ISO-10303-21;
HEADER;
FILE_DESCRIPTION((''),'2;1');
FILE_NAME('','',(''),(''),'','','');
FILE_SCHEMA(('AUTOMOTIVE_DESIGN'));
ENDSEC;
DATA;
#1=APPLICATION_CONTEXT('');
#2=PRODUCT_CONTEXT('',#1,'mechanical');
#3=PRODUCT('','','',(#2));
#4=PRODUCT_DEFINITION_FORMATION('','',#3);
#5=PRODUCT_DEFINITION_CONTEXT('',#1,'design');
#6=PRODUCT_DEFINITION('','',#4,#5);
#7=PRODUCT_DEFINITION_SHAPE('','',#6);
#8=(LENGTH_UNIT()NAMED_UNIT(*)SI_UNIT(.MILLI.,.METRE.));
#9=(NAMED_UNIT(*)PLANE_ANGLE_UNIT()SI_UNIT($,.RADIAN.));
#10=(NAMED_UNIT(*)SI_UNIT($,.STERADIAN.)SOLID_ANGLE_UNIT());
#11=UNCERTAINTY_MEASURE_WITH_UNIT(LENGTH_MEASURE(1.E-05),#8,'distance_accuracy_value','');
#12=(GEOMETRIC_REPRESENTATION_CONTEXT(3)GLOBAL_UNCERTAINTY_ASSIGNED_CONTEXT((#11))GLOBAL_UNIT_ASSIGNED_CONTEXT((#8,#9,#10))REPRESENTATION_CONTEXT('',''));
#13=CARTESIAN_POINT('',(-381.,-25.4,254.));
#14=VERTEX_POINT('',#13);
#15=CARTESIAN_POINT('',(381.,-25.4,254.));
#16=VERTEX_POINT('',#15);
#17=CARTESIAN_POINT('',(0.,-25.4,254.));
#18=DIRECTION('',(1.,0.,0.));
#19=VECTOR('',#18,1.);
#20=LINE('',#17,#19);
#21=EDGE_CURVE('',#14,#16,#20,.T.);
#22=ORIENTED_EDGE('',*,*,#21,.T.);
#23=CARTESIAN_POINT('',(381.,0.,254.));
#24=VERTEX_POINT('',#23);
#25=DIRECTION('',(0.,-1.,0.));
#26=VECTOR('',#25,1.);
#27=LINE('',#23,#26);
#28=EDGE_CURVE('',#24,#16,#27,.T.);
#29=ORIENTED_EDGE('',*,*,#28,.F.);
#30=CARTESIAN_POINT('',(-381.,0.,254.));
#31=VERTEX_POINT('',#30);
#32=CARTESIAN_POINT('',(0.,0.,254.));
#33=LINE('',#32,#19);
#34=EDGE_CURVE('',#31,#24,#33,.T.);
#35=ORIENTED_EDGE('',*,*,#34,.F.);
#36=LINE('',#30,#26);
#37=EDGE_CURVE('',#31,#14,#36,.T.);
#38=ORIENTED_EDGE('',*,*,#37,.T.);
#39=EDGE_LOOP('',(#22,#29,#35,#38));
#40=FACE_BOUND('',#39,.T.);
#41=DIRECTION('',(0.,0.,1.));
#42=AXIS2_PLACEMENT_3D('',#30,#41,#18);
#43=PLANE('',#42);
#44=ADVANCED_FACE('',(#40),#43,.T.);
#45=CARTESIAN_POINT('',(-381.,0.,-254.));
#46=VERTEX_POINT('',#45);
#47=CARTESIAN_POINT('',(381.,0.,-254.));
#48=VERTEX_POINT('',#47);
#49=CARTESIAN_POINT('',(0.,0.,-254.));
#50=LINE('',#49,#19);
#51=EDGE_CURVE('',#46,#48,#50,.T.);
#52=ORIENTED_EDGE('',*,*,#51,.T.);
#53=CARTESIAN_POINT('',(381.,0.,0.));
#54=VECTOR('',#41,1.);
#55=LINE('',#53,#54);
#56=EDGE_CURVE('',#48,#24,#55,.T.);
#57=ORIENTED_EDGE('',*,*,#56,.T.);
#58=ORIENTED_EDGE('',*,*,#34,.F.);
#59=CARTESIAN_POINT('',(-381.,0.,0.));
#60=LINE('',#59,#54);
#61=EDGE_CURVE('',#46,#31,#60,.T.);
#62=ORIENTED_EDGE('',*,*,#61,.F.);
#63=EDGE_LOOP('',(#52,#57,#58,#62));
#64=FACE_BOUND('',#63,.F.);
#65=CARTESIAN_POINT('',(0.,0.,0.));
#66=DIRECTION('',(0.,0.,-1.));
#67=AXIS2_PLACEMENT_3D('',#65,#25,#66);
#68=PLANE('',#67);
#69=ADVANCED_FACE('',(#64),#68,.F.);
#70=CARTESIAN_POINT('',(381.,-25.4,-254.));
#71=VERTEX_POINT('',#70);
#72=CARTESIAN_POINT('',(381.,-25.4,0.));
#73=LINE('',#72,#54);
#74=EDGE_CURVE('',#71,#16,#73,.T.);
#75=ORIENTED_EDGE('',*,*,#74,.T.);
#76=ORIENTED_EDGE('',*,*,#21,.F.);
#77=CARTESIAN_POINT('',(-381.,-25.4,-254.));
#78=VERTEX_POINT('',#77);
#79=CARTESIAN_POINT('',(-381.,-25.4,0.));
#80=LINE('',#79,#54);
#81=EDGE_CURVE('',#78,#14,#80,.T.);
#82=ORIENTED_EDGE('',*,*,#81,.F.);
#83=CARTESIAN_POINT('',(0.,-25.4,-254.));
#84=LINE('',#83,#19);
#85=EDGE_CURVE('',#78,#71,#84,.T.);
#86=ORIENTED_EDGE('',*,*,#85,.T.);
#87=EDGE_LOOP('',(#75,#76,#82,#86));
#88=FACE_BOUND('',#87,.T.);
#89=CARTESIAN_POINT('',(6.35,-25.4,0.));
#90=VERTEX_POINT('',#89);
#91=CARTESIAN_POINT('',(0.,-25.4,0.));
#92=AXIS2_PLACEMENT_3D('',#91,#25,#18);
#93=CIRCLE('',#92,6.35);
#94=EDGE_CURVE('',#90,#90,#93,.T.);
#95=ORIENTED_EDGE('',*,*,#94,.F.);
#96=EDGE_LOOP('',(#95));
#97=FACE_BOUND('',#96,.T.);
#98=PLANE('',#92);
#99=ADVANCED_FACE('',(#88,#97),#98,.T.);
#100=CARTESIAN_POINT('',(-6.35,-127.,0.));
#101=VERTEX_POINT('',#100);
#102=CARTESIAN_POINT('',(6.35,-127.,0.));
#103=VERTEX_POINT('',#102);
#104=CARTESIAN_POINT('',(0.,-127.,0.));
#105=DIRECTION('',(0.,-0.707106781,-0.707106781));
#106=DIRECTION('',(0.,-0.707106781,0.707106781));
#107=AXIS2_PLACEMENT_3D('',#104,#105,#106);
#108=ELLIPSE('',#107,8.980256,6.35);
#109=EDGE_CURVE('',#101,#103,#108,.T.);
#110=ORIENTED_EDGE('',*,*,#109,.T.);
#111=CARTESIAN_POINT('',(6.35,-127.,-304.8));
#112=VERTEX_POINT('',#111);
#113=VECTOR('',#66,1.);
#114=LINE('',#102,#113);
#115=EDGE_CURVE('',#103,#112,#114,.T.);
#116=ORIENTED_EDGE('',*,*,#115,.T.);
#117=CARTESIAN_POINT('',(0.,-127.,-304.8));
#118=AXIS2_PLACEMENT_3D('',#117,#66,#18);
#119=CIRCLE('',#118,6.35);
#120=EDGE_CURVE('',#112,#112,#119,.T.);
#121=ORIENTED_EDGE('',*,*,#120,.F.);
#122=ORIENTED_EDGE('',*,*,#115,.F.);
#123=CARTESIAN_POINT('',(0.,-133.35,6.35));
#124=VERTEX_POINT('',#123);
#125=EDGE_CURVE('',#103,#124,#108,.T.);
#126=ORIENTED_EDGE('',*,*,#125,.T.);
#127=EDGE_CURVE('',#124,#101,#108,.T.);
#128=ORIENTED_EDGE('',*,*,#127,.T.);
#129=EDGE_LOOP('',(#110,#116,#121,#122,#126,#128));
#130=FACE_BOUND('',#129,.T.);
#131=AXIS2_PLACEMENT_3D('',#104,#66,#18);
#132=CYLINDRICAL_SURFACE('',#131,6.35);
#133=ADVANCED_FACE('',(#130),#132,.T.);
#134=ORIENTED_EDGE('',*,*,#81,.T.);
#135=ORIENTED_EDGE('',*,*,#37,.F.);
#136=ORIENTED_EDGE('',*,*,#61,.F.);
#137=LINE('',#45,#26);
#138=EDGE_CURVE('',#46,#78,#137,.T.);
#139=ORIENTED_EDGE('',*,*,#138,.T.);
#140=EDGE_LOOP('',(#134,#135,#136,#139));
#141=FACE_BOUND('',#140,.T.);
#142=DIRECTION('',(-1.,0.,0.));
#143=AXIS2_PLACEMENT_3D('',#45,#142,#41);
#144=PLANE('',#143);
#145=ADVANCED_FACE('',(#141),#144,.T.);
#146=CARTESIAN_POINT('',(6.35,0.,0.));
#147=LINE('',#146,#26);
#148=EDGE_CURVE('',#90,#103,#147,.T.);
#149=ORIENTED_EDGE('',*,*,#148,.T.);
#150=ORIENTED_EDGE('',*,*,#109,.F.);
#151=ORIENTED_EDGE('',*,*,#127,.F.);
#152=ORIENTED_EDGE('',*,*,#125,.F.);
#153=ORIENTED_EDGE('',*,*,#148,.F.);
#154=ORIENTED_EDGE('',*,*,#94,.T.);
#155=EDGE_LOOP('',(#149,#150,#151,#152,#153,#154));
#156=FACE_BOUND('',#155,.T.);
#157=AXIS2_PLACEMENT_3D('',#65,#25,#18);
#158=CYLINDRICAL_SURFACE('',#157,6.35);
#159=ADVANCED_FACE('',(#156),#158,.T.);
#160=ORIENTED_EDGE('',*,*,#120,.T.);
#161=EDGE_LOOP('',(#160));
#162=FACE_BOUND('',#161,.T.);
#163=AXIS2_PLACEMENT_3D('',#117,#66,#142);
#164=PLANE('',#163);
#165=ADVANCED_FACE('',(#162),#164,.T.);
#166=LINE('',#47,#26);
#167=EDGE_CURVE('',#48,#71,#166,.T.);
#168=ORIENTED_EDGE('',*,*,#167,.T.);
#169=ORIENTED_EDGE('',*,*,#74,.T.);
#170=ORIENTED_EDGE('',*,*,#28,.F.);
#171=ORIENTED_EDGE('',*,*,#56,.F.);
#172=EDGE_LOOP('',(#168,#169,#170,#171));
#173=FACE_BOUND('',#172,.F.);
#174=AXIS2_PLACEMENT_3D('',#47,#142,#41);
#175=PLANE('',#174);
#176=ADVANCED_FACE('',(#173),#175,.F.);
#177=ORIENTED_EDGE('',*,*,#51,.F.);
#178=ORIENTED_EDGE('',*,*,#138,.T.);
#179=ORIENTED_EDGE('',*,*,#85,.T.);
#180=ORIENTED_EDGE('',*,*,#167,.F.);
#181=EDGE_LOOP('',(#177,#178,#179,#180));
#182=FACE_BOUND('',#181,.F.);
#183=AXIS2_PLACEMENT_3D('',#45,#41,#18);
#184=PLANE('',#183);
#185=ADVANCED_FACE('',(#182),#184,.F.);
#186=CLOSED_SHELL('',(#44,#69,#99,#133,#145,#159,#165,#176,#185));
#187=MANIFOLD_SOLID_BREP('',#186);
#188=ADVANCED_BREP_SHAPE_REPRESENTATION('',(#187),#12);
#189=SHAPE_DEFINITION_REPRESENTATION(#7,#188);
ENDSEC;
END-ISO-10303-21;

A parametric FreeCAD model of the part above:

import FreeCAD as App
import Part
import Sketcher

V = App.Vector
Q = App.Units.Quantity


def add_polygon(sketch, points):
    """Adds a closed chain of lines whose ends are joined by coincident constraints."""
    first, n = sketch.GeometryCount, len(points)
    for a, b in zip(points, points[1:] + points[:1]):
        sketch.addGeometry(Part.LineSegment(App.Vector(*a, 0), App.Vector(*b, 0)), False)
    for i in range(n):
        sketch.addConstraint(Sketcher.Constraint("Coincident", first + i, 2, first + (i + 1) % n, 1))

doc = App.newDocument("Part")
params = doc.addObject("Spreadsheet::Sheet", "Params")
for row, (alias, value) in enumerate([
    ("sketch1_width", "30 in"),
    ("sketch1_height", "20 in"),
    ("pad1_length", "1 in"),
    ("sketch2_diameter", "0.5 in"),
    ("sketch3_width", "5 in"),
    ("sketch3_height", "12 in"),
], start=1):
    params.set(f"A{row}", alias)
    params.set(f"B{row}", "=" + value)
    params.setAlias(f"B{row}", alias)

body = doc.addObject("PartDesign::Body", "Body")

# Sketch on XZ plane
sketch1 = body.newObject("Sketcher::SketchObject", "Sketch")
sketch1.AttachmentSupport = (doc.getObject("XZ_Plane"), [""])
sketch1.MapMode = "FlatFace"
add_polygon(sketch1, [(-381, 254), (-381, -254), (381, -254), (381, 254)])  # lines 0-3
sketch1.addConstraint([
    Sketcher.Constraint("Vertical", 0),
    Sketcher.Constraint("Horizontal", 1),
    Sketcher.Constraint("Vertical", 2),
    Sketcher.Constraint("Horizontal", 3),
    Sketcher.Constraint("Symmetric", 0, 2, 2, 2, -1, 1),
    Sketcher.Constraint("DistanceX", 1, 1, 1, 2, Q("30 in")),
    Sketcher.Constraint("DistanceY", 0, 2, 0, 1, Q("20 in")),
])
sketch1.setExpression("Constraints[9]", "Params.sketch1_width")
sketch1.setExpression("Constraints[10]", "Params.sketch1_height")
pad1 = body.newObject("PartDesign::Pad", "Pad")
pad1.Profile = sketch1
pad1.setExpression("Length", "Params.pad1_length")

# Sketch on XZ plane
sketch2 = body.newObject("Sketcher::SketchObject", "Sketch001")
sketch2.AttachmentSupport = (doc.getObject("XZ_Plane"), [""])
sketch2.MapMode = "FlatFace"
sketch2.addGeometry(Part.Circle(V(0, 0, 0), V(0, 0, 1), 6), False)
sketch2.addConstraint([
    Sketcher.Constraint("Coincident", 0, 3, -1, 1),
    Sketcher.Constraint("Diameter", 0, Q("0.5 in")),
])
sketch2.setExpression("Constraints[1]", "Params.sketch2_diameter")

# Sketch on YZ plane
sketch3 = body.newObject("Sketcher::SketchObject", "Sketch002")
sketch3.AttachmentSupport = (doc.getObject("YZ_Plane"), [""])
sketch3.MapMode = "FlatFace"
sketch3.addGeometry([
    Part.LineSegment(V(0, 0, 0), V(-127, 0, 0)),
    Part.LineSegment(V(-127, 0, 0), V(-127, -305, 0)),
], False)
sketch3.addConstraint([
    Sketcher.Constraint("Coincident", 0, 2, 1, 1),
    Sketcher.Constraint("Horizontal", 0),
    Sketcher.Constraint("Vertical", 1),
    Sketcher.Constraint("Coincident", 0, 1, -1, 1),
    Sketcher.Constraint("DistanceX", 0, 2, 0, 1, Q("5 in")),
    Sketcher.Constraint("DistanceY", 1, 2, 1, 1, Q("12 in")),
])
sketch3.setExpression("Constraints[4]", "Params.sketch3_width")
sketch3.setExpression("Constraints[5]", "Params.sketch3_height")
doc.recompute()

additivepipe = body.newObject("PartDesign::AdditivePipe", "AdditivePipe")
additivepipe.Profile = sketch2
additivepipe.Spine = (sketch3, ["Edge1", "Edge2"])
additivepipe.Transition = "Right corner"

doc.recompute()
